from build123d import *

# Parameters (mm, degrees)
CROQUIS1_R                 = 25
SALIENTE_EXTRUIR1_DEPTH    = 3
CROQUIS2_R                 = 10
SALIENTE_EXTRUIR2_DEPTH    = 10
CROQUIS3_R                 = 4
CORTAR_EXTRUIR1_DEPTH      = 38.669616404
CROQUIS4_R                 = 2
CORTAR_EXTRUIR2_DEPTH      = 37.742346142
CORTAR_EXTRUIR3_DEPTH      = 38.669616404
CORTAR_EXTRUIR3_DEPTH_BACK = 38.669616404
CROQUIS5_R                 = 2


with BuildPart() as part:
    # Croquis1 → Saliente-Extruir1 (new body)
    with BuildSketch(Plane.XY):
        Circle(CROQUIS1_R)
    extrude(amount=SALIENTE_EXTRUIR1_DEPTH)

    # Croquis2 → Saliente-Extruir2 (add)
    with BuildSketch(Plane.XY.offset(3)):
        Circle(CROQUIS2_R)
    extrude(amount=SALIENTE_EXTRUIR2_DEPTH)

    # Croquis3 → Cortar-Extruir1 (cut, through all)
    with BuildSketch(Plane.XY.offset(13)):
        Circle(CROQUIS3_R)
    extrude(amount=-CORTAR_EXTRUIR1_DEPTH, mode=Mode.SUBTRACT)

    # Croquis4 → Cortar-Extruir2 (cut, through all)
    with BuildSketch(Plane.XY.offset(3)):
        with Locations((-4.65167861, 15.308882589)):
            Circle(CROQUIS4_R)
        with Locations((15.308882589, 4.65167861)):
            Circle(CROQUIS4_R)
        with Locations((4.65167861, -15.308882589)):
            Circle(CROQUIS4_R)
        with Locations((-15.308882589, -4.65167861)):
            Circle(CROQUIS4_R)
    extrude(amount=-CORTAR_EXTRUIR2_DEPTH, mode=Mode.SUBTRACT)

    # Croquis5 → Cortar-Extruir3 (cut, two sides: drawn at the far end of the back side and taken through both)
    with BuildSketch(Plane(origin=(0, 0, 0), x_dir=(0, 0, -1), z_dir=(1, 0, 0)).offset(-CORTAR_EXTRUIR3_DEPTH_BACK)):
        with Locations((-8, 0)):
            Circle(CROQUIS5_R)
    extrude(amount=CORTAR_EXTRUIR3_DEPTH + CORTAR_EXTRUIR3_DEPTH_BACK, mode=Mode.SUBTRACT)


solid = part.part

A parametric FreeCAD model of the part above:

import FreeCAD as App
import Part
import Sketcher
from FreeCAD import Vector

doc = App.newDocument("Part")
body = doc.addObject("PartDesign::Body", "Body")

# Sketch on XY plane
sketch1 = doc.addObject("Sketcher::SketchObject", "Sketch")
body.addObject(sketch1)
sketch1.AttachmentSupport = (doc.XY_Plane, [""])
sketch1.MapMode = "FlatFace"
sketch1.addGeometry(Part.Circle(Vector(0, 0, 0), Vector(0, 0, 1), 25), False)
sketch1.addConstraint([
    Sketcher.Constraint("Coincident", 0, 3, -1, 1),
    Sketcher.Constraint("Diameter", 0, 50.0),
])
pad1 = doc.addObject("PartDesign::Pad", "Pad")
body.addObject(pad1)
pad1.Profile = sketch1
pad1.Length = 3

# Sketch on XY plane
sketch2 = doc.addObject("Sketcher::SketchObject", "Sketch001")
body.addObject(sketch2)
sketch2.AttachmentSupport = (doc.XY_Plane, [""])
sketch2.MapMode = "FlatFace"
sketch2.AttachmentOffset = App.Placement(Vector(0, 0, 3), App.Rotation())
sketch2.addGeometry(Part.Circle(Vector(0, 0, 0), Vector(0, 0, 1), 10), False)
sketch2.addConstraint([
    Sketcher.Constraint("Coincident", 0, 3, -1, 1),
    Sketcher.Constraint("Diameter", 0, 20.0),
])
pad2 = doc.addObject("PartDesign::Pad", "Pad001")
body.addObject(pad2)
pad2.Profile = sketch2
pad2.Length = 10

# Sketch on XY plane
sketch3 = doc.addObject("Sketcher::SketchObject", "Sketch002")
body.addObject(sketch3)
sketch3.AttachmentSupport = (doc.XY_Plane, [""])
sketch3.MapMode = "FlatFace"
sketch3.AttachmentOffset = App.Placement(Vector(0, 0, 13), App.Rotation())
sketch3.addGeometry(Part.Circle(Vector(0, 0, 0), Vector(0, 0, 1), 4), False)
sketch3.addConstraint([
    Sketcher.Constraint("Coincident", 0, 3, -1, 1),
    Sketcher.Constraint("Diameter", 0, 8.0),
])
pocket1 = doc.addObject("PartDesign::Pocket", "Pocket")
body.addObject(pocket1)
pocket1.Profile = sketch3
pocket1.Type = "ThroughAll"

# Sketch on XY plane
sketch4 = doc.addObject("Sketcher::SketchObject", "Sketch003")
body.addObject(sketch4)
sketch4.AttachmentSupport = (doc.XY_Plane, [""])
sketch4.MapMode = "FlatFace"
sketch4.AttachmentOffset = App.Placement(Vector(0, 0, 3), App.Rotation())
sketch4.addGeometry([
    Part.Circle(Vector(-4.7, 15.3, 0), Vector(0, 0, 1), 2),
    Part.Circle(Vector(15.3, 4.7, 0), Vector(0, 0, 1), 2),
    Part.Circle(Vector(4.7, -15.3, 0), Vector(0, 0, 1), 2),
    Part.Circle(Vector(-15.3, -4.7, 0), Vector(0, 0, 1), 2),
], False)
sketch4.addConstraint([
    Sketcher.Constraint("Equal", 0, 1),
    Sketcher.Constraint("Equal", 1, 2),
    Sketcher.Constraint("Equal", 2, 3),
    Sketcher.Constraint("Symmetric", 0, 3, 2, 3, -1, 1),
    Sketcher.Constraint("Symmetric", 1, 3, 3, 3, -1, 1),
    Sketcher.Constraint("Diameter", 0, 4.0),
    Sketcher.Constraint("DistanceX", 0, 3, -1, 1, 4.651679),
    Sketcher.Constraint("DistanceY", -1, 1, 1, 3, 4.651679),
    Sketcher.Constraint("DistanceX", 0, 3, 1, 3, 19.960561),
    Sketcher.Constraint("DistanceY", 2, 3, 1, 3, 19.960561),
])
pocket2 = doc.addObject("PartDesign::Pocket", "Pocket001")
body.addObject(pocket2)
pocket2.Profile = sketch4
pocket2.Type = "ThroughAll"

# Sketch on YZ plane
sketch5 = doc.addObject("Sketcher::SketchObject", "Sketch004")
body.addObject(sketch5)
sketch5.AttachmentSupport = (doc.YZ_Plane, [""])
sketch5.MapMode = "FlatFace"
sketch5.addGeometry(Part.Circle(Vector(0, 8, 0), Vector(0, 0, 1), 2), False)
sketch5.addConstraint([
    Sketcher.Constraint("PointOnObject", 0, 3, -2),
    Sketcher.Constraint("Diameter", 0, 4.0),
    Sketcher.Constraint("DistanceY", -1, 1, 0, 3, 8.0),
])
pocket3 = doc.addObject("PartDesign::Pocket", "Pocket002")
body.addObject(pocket3)
pocket3.Profile = sketch5
pocket3.Type = "ThroughAll"
pocket3.Midplane = True

doc.recompute()
